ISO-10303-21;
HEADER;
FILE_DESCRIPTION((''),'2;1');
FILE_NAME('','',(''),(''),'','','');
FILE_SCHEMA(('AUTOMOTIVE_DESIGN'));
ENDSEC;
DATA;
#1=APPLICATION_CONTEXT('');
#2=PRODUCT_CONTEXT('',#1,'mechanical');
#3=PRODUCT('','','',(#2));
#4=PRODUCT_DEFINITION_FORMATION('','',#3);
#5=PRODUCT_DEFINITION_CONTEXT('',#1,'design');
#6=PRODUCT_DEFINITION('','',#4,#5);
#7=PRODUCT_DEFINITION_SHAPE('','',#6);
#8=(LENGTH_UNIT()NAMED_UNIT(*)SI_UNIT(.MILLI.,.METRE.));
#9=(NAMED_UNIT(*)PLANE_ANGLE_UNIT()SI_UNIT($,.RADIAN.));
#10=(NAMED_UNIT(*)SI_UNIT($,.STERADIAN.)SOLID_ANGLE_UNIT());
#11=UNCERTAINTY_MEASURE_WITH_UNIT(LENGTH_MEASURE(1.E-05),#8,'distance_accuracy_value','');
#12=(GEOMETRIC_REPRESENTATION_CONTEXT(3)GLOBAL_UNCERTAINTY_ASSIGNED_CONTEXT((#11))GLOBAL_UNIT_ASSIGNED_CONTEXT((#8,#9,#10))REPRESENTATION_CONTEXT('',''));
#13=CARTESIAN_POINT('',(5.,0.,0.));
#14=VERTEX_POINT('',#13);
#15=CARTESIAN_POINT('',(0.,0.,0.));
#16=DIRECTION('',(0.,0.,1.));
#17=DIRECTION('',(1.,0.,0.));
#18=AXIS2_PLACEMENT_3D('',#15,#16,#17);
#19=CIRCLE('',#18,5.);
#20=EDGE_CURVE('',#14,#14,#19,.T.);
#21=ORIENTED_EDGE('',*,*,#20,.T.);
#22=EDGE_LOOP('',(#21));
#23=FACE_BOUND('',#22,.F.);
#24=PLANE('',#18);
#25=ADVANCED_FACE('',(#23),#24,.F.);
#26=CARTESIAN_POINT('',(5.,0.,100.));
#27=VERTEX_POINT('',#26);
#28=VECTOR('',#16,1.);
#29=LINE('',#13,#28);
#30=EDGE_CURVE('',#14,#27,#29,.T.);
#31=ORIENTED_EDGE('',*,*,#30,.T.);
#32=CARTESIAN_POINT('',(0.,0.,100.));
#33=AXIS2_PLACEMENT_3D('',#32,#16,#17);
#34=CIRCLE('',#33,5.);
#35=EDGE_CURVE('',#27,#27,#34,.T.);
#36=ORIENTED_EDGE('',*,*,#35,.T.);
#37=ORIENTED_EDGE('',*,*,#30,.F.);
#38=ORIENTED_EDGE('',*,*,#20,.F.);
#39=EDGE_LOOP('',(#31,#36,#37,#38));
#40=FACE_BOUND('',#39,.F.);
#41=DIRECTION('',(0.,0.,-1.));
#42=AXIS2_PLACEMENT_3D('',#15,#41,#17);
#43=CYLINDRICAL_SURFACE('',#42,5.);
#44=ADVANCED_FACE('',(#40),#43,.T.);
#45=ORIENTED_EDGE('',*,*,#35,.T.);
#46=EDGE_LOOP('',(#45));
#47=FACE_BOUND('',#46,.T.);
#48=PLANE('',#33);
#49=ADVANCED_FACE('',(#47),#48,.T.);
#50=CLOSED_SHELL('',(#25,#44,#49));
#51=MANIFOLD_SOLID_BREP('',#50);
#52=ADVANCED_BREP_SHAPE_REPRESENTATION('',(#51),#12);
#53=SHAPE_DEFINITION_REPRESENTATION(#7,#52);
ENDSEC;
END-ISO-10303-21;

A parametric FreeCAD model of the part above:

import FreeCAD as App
import Part
import Sketcher

V = App.Vector
Q = App.Units.Quantity

doc = App.newDocument("Part")
params = doc.addObject("Spreadsheet::Sheet", "Params")
for row, (alias, value) in enumerate([
    ("pad1_length", "3.9370079 in"),
], start=1):
    params.set(f"A{row}", alias)
    params.set(f"B{row}", "=" + value)
    params.setAlias(f"B{row}", alias)

body = doc.addObject("PartDesign::Body", "Body")

sketch1 = body.newObject("Sketcher::SketchObject", "Sketch")
sketch1.AttachmentSupport = (doc.getObject("XY_Plane"), [""])
sketch1.MapMode = "FlatFace"
sketch1.addGeometry(Part.Circle(V(0, 0, 0), V(0, 0, 1), 5), False)
sketch1.addConstraint([
    Sketcher.Constraint("Coincident", 0, 3, -1, 1),
    Sketcher.Constraint("Diameter", 0, Q("0.3937 in")),
])
pad1 = body.newObject("PartDesign::Pad", "Pad")
pad1.Profile = sketch1
pad1.setExpression("Length", "Params.pad1_length")

doc.recompute()
